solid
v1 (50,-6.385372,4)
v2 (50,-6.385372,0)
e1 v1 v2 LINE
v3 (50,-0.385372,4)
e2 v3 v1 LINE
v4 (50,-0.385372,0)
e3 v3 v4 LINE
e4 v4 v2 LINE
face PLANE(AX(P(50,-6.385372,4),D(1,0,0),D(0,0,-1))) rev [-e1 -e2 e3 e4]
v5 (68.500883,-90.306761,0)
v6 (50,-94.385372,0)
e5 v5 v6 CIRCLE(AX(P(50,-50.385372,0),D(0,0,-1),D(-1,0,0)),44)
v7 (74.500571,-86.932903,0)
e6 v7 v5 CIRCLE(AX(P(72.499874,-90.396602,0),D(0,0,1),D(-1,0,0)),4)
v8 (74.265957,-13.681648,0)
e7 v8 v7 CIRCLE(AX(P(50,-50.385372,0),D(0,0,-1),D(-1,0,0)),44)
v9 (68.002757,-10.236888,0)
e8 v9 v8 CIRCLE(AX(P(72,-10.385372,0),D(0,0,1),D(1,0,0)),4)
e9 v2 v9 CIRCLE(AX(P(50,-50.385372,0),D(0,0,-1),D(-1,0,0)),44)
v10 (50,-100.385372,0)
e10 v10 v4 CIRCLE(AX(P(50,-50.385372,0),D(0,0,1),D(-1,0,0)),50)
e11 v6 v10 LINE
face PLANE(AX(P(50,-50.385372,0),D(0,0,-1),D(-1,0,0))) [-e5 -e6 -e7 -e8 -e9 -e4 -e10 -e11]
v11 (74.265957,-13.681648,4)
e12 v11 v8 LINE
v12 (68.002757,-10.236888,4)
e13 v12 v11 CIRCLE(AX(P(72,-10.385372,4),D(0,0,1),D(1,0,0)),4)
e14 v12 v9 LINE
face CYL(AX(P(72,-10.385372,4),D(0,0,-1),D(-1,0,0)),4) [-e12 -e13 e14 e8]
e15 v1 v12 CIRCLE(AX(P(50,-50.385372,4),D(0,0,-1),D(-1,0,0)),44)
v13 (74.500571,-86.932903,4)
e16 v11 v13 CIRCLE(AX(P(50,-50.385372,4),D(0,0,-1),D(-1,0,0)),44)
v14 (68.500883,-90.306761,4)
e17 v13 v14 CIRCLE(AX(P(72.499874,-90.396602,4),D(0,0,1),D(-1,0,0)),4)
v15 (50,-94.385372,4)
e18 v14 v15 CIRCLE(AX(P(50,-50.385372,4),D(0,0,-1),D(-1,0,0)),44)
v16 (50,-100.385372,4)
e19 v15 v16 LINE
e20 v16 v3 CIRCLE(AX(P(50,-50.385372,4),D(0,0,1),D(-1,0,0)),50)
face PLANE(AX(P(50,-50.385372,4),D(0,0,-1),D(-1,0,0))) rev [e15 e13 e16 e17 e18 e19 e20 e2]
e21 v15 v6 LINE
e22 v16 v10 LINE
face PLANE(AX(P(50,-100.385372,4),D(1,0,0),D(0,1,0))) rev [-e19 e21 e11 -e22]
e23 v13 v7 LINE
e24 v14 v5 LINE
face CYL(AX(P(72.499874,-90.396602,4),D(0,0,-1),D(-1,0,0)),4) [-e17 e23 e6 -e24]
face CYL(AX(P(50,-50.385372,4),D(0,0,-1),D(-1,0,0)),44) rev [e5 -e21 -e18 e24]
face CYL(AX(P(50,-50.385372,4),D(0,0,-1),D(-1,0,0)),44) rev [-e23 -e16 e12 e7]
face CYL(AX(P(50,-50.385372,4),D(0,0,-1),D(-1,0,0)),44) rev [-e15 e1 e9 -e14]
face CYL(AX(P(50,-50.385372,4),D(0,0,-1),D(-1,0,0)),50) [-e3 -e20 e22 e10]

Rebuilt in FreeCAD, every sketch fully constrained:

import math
import FreeCAD as App
import Part
import Sketcher
Q = App.Units.Quantity

doc = App.newDocument("Part")
body = doc.addObject("PartDesign::Body", "Body")

sketch1 = body.newObject("Sketcher::SketchObject", "Sketch")
sketch1.AttachmentSupport = (doc.getObject("XY_Plane"), [""])
sketch1.MapMode = "FlatFace"
sketch1.addGeometry([
    Part.LineSegment(App.Vector(50, -94.385372, 0), App.Vector(50, -100.385372, 0)),
    Part.ArcOfCircle(Part.Circle(App.Vector(50, -50.385372, 0), App.Vector(0, 0, 1), 50), math.radians(-90), math.radians(90)),
    Part.LineSegment(App.Vector(50, -0.385372, 0), App.Vector(50, -6.385372, 0)),
    Part.ArcOfCircle(Part.Circle(App.Vector(50, -50.385372, 0), App.Vector(0, 0, 1), 44), math.radians(65.848326), math.radians(90)),
    Part.ArcOfCircle(Part.Circle(App.Vector(72, -10.385372, 0), App.Vector(0, 0, 1), 4), math.radians(177.872639), math.radians(304.505774)),
    Part.ArcOfCircle(Part.Circle(App.Vector(50, -50.385372, 0), App.Vector(0, 0, 1), 44), math.radians(-56.163067), math.radians(56.530087)),
    Part.ArcOfCircle(Part.Circle(App.Vector(72.499874, -90.396602, 0), App.Vector(0, 0, 1), 4), math.radians(59.98847), math.radians(178.713019)),
    Part.ArcOfCircle(Part.Circle(App.Vector(50, -50.385372, 0), App.Vector(0, 0, 1), 44), math.radians(-90), math.radians(-65.135445)),
], False)
sketch1.addConstraint([
    Sketcher.Constraint("Coincident", 0, 2, 1, 1),
    Sketcher.Constraint("Coincident", 1, 2, 2, 1),
    Sketcher.Constraint("Coincident", 2, 2, 3, 2),
    Sketcher.Constraint("Coincident", 3, 1, 4, 1),
    Sketcher.Constraint("Coincident", 4, 2, 5, 2),
    Sketcher.Constraint("Coincident", 5, 1, 6, 1),
    Sketcher.Constraint("Coincident", 6, 2, 7, 2),
    Sketcher.Constraint("Coincident", 7, 1, 0, 1),
    Sketcher.Constraint("Vertical", 0),
    Sketcher.Constraint("Vertical", 2),
    Sketcher.Constraint("Coincident", 3, 3, 1, 3),
    Sketcher.Constraint("Coincident", 5, 3, 1, 3),
    Sketcher.Constraint("Coincident", 7, 3, 1, 3),
    Sketcher.Constraint("Equal", 3, 5),
    Sketcher.Constraint("Equal", 4, 6),
    Sketcher.Constraint("Equal", 5, 7),
    Sketcher.Constraint("Vertical", 7, 3, 0, 2),
    Sketcher.Constraint("Vertical", 0, 2, 1, 2),
    Sketcher.Constraint("Radius", 1, Q("50 mm")),
    Sketcher.Constraint("Radius", 3, Q("44 mm")),
    Sketcher.Constraint("Radius", 4, Q("4 mm")),
    Sketcher.Constraint("DistanceX", -1, 1, 1, 3, Q("50 mm")),
    Sketcher.Constraint("DistanceX", -1, 1, 4, 3, Q("72 mm")),
    Sketcher.Constraint("DistanceY", 1, 3, 4, 3, Q("40 mm")),
    Sketcher.Constraint("DistanceY", 6, 3, -1, 1, Q("90.396602 mm")),
    Sketcher.Constraint("DistanceY", 6, 3, 5, 1, Q("3.463699 mm")),
    Sketcher.Constraint("DistanceY", 1, 3, -1, 1, Q("50.385372 mm")),
])
pad1 = body.newObject("PartDesign::Pad", "Pad")
pad1.Profile = sketch1
pad1.Length = 4

doc.recompute()
